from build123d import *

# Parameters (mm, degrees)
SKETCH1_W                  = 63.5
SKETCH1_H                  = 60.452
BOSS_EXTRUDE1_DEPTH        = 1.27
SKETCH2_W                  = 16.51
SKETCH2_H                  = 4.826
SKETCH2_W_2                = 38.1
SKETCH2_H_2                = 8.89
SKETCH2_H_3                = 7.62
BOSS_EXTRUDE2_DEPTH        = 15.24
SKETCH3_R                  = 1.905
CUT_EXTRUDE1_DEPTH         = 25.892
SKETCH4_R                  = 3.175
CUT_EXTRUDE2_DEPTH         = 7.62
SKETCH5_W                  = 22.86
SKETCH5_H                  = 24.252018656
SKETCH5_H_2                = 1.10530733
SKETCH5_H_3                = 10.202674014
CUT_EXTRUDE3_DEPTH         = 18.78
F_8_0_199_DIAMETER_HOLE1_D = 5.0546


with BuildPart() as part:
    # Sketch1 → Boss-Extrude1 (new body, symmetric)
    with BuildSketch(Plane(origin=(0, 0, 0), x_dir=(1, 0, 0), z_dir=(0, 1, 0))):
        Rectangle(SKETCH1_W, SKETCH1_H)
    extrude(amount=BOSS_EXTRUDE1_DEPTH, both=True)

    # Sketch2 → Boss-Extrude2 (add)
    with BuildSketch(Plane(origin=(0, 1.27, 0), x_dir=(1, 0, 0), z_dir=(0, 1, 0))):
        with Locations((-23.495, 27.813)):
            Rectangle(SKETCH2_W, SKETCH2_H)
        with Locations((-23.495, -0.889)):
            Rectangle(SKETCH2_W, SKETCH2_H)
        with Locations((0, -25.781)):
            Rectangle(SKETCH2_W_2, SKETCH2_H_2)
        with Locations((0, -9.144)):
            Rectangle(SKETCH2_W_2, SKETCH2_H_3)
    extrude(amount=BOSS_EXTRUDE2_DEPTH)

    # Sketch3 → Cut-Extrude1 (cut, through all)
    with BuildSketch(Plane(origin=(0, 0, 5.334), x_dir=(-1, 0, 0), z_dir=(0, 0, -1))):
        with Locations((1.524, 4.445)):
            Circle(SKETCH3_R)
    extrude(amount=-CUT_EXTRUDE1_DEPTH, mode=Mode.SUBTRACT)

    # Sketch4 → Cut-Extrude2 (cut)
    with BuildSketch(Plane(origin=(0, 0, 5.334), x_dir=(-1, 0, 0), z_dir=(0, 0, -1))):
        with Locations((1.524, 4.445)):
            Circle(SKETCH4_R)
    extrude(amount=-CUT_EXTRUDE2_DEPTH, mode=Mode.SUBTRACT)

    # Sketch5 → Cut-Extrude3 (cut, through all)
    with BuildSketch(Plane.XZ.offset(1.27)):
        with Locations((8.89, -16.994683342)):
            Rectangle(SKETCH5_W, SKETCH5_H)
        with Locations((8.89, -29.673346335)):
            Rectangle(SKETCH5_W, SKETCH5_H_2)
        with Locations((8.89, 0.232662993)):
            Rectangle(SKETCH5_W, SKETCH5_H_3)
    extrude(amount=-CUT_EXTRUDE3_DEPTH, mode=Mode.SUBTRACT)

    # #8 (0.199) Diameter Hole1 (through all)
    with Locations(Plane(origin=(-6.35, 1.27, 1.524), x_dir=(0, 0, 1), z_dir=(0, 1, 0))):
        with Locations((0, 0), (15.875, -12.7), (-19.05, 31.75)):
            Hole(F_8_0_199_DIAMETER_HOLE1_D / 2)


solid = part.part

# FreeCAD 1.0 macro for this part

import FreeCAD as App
import Part
import Sketcher

V = App.Vector
Q = App.Units.Quantity

doc = App.newDocument("Part")
params = doc.addObject("Spreadsheet::Sheet", "Params")
for row, (alias, value) in enumerate([
    ("sketch1_width", "2.5 in"),
    ("sketch1_height", "2.38 in"),
    ("pad1_length", "0.1 in"),
    ("sketch2_width", "1.5 in"),
    ("sketch2_height", "0.3 in"),
    ("sketch2_width2", "0.65 in"),
    ("sketch2_height2", "0.19 in"),
    ("sketch2_height3", "0.35 in"),
    ("pad2_length", "0.6 in"),
    ("sketch3_diameter", "0.15 in"),
    ("sketch4_diameter", "0.25 in"),
    ("pocket2_length", "0.3 in"),
    ("sketch5_width", "0.9 in"),
    ("sketch5_height", "1.4 in"),
    ("sketch6_diameter", "0.199 in"),
    ("hole_diameter", "0.199 in"),
], start=1):
    params.set(f"A{row}", alias)
    params.set(f"B{row}", "=" + value)
    params.setAlias(f"B{row}", alias)

body = doc.addObject("PartDesign::Body", "Body")

sketch1 = doc.addObject("Sketcher::SketchObject", "Sketch")
body.addObject(sketch1)
sketch1.AttachmentSupport = (doc.XZ_Plane, [""])
sketch1.MapMode = "FlatFace"
sketch1.addGeometry([
    Part.LineSegment(V(-32, -30, 0), V(-32, 30, 0)),
    Part.LineSegment(V(-32, 30, 0), V(32, 30, 0)),
    Part.LineSegment(V(32, 30, 0), V(32, -30, 0)),
    Part.LineSegment(V(32, -30, 0), V(-32, -30, 0)),
], False)
sketch1.addConstraint([
    Sketcher.Constraint("Coincident", 0, 2, 1, 1),
    Sketcher.Constraint("Coincident", 1, 2, 2, 1),
    Sketcher.Constraint("Coincident", 2, 2, 3, 1),
    Sketcher.Constraint("Coincident", 3, 2, 0, 1),
    Sketcher.Constraint("Vertical", 0),
    Sketcher.Constraint("Horizontal", 1),
    Sketcher.Constraint("Vertical", 2),
    Sketcher.Constraint("Horizontal", 3),
    Sketcher.Constraint("Symmetric", 0, 2, 2, 2, -1, 1),
    Sketcher.Constraint("DistanceX", 1, 1, 1, 2, Q("2.5 in")),
    Sketcher.Constraint("DistanceY", 0, 1, 0, 2, Q("2.38 in")),
])
sketch1.setExpression("Constraints[9]", "Params.sketch1_width")
sketch1.setExpression("Constraints[10]", "Params.sketch1_height")
pad1 = doc.addObject("PartDesign::Pad", "Pad")
body.addObject(pad1)
pad1.Profile = sketch1
pad1.setExpression("Length", "Params.pad1_length")
pad1.Midplane = True

sketch2 = doc.addObject("Sketcher::SketchObject", "Sketch001")
body.addObject(sketch2)
sketch2.AttachmentSupport = (doc.XZ_Plane, [""])
sketch2.MapMode = "FlatFace"
sketch2.AttachmentOffset = App.Placement(V(0, 0, -0.05 * 25.4), App.Rotation())
sketch2.addGeometry([
    Part.LineSegment(V(-31.8, -30.2, 0), V(-31.8, -25.4, 0)),
    Part.LineSegment(V(-31.8, -25.4, 0), V(-15.2, -25.4, 0)),
    Part.LineSegment(V(-15.2, -25.4, 0), V(-15.2, -30.2, 0)),
    Part.LineSegment(V(-15.2, -30.2, 0), V(-31.8, -30.2, 0)),
    Part.LineSegment(V(-31.8, -1.5, 0), V(-31.8, 3.3, 0)),
    Part.LineSegment(V(-31.8, 3.3, 0), V(-15.2, 3.3, 0)),
    Part.LineSegment(V(-15.2, 3.3, 0), V(-15.2, -1.5, 0)),
    Part.LineSegment(V(-15.2, -1.5, 0), V(-31.8, -1.5, 0)),
    Part.LineSegment(V(-19.1, 21.3, 0), V(-19.1, 30.2, 0)),
    Part.LineSegment(V(-19.1, 30.2, 0), V(19.1, 30.2, 0)),
    Part.LineSegment(V(19.1, 30.2, 0), V(19.1, 21.3, 0)),
    Part.LineSegment(V(19.1, 21.3, 0), V(-19.1, 21.3, 0)),
    Part.LineSegment(V(-19.1, 5.3, 0), V(-19.1, 13, 0)),
    Part.LineSegment(V(-19.1, 13, 0), V(19.1, 13, 0)),
    Part.LineSegment(V(19.1, 13, 0), V(19.1, 5.3, 0)),
    Part.LineSegment(V(19.1, 5.3, 0), V(-19.1, 5.3, 0)),
], False)
sketch2.addConstraint([
    Sketcher.Constraint("Coincident", 0, 2, 1, 1),
    Sketcher.Constraint("Coincident", 1, 2, 2, 1),
    Sketcher.Constraint("Coincident", 2, 2, 3, 1),
    Sketcher.Constraint("Coincident", 3, 2, 0, 1),
    Sketcher.Constraint("Coincident", 4, 2, 5, 1),
    Sketcher.Constraint("Coincident", 5, 2, 6, 1),
    Sketcher.Constraint("Coincident", 6, 2, 7, 1),
    Sketcher.Constraint("Coincident", 7, 2, 4, 1),
    Sketcher.Constraint("Coincident", 8, 2, 9, 1),
    Sketcher.Constraint("Coincident", 9, 2, 10, 1),
    Sketcher.Constraint("Coincident", 10, 2, 11, 1),
    Sketcher.Constraint("Coincident", 11, 2, 8, 1),
    Sketcher.Constraint("Coincident", 12, 2, 13, 1),
    Sketcher.Constraint("Coincident", 13, 2, 14, 1),
    Sketcher.Constraint("Coincident", 14, 2, 15, 1),
    Sketcher.Constraint("Coincident", 15, 2, 12, 1),
    Sketcher.Constraint("Vertical", 0),
    Sketcher.Constraint("Horizontal", 1),
    Sketcher.Constraint("Vertical", 2),
    Sketcher.Constraint("Horizontal", 3),
    Sketcher.Constraint("Vertical", 4),
    Sketcher.Constraint("Horizontal", 5),
    Sketcher.Constraint("Vertical", 6),
    Sketcher.Constraint("Horizontal", 7),
    Sketcher.Constraint("Vertical", 8),
    Sketcher.Constraint("Horizontal", 9),
    Sketcher.Constraint("Vertical", 10),
    Sketcher.Constraint("Horizontal", 11),
    Sketcher.Constraint("Vertical", 12),
    Sketcher.Constraint("Horizontal", 13),
    Sketcher.Constraint("Vertical", 14),
    Sketcher.Constraint("Horizontal", 15),
    Sketcher.Constraint("Vertical", 3, 2, 4, 2),
    Sketcher.Constraint("Vertical", 2, 2, 5, 2),
    Sketcher.Constraint("Vertical", 11, 2, 12, 2),
    Sketcher.Constraint("Vertical", 10, 2, 13, 2),
    Sketcher.Constraint("Equal", 2, 4),
    Sketcher.Constraint("DistanceX", 9, 1, 9, 2, Q("1.5 in")),
    Sketcher.Constraint("DistanceY", 12, 1, 12, 2, Q("0.3 in")),
    Sketcher.Constraint("DistanceY", 0, 2, -1, 1, Q("1 in")),
    Sketcher.Constraint("DistanceX", 4, 2, 9, 2, Q("2 in")),
    Sketcher.Constraint("DistanceX", 1, 1, 1, 2, Q("0.65 in")),
    Sketcher.Constraint("DistanceY", 0, 1, 0, 2, Q("0.19 in")),
    Sketcher.Constraint("DistanceY", 8, 1, 8, 2, Q("0.35 in")),
    Sketcher.Constraint("DistanceX", 1, 2, -1, 1, Q("0.6 in")),
    Sketcher.Constraint("DistanceY", 6, 2, 10, 2, Q("0.9 in")),
    Sketcher.Constraint("DistanceY", -1, 1, 4, 2, Q("0.13 in")),
    Sketcher.Constraint("DistanceY", -1, 1, 12, 2, Q("0.51 in")),
])
sketch2.setExpression("Constraints[37]", "Params.sketch2_width")
sketch2.setExpression("Constraints[38]", "Params.sketch2_height")
sketch2.setExpression("Constraints[41]", "Params.sketch2_width2")
sketch2.setExpression("Constraints[42]", "Params.sketch2_height2")
sketch2.setExpression("Constraints[43]", "Params.sketch2_height3")
pad2 = doc.addObject("PartDesign::Pad", "Pad001")
body.addObject(pad2)
pad2.Profile = sketch2
pad2.setExpression("Length", "Params.pad2_length")
pad2.Reversed = True

sketch3 = doc.addObject("Sketcher::SketchObject", "Sketch002")
body.addObject(sketch3)
sketch3.AttachmentSupport = (doc.XY_Plane, [""])
sketch3.MapMode = "FlatFace"
sketch3.AttachmentOffset = App.Placement(V(0, 0, 0.21 * 25.4), App.Rotation())
sketch3.addGeometry(Part.Circle(V(-1.5, 4.4, 0), V(0, 0, 1), 1.9), False)
sketch3.addConstraint([
    Sketcher.Constraint("Diameter", 0, Q("0.15 in")),
    Sketcher.Constraint("DistanceX", 0, 3, -1, 1, Q("0.06 in")),
    Sketcher.Constraint("DistanceY", -1, 1, 0, 3, Q("0.175 in")),
])
sketch3.setExpression("Constraints[0]", "Params.sketch3_diameter")
pocket1 = doc.addObject("PartDesign::Pocket", "Pocket")
body.addObject(pocket1)
pocket1.Profile = sketch3
pocket1.Type = "ThroughAll"
pocket1.Reversed = True

sketch4 = doc.addObject("Sketcher::SketchObject", "Sketch003")
body.addObject(sketch4)
sketch4.AttachmentSupport = (doc.XY_Plane, [""])
sketch4.MapMode = "FlatFace"
sketch4.AttachmentOffset = App.Placement(V(0, 0, 0.21 * 25.4), App.Rotation())
sketch4.addGeometry(Part.Circle(V(-1.5, 4.4, 0), V(0, 0, 1), 3.2), False)
sketch4.addConstraint([
    Sketcher.Constraint("Diameter", 0, Q("0.25 in")),
    Sketcher.Constraint("DistanceX", 0, 3, -1, 1, Q("0.06 in")),
    Sketcher.Constraint("DistanceY", -1, 1, 0, 3, Q("0.175 in")),
])
sketch4.setExpression("Constraints[0]", "Params.sketch4_diameter")
pocket2 = doc.addObject("PartDesign::Pocket", "Pocket001")
body.addObject(pocket2)
pocket2.Profile = sketch4
pocket2.setExpression("Length", "Params.pocket2_length")
pocket2.Reversed = True

sketch5 = doc.addObject("Sketcher::SketchObject", "Sketch004")
body.addObject(sketch5)
sketch5.AttachmentSupport = (doc.XZ_Plane, [""])
sketch5.MapMode = "FlatFace"
sketch5.AttachmentOffset = App.Placement(V(0, 0, 0.05 * 25.4), App.Rotation())
sketch5.addGeometry([
    Part.LineSegment(V(-3, -30, 0), V(20, -30, 0)),
    Part.LineSegment(V(20, -30, 0), V(20, 5, 0)),
    Part.LineSegment(V(20, 5, 0), V(-3, 5, 0)),
    Part.LineSegment(V(-3, 5, 0), V(-3, -30, 0)),
], False)
sketch5.addConstraint([
    Sketcher.Constraint("Coincident", 0, 2, 1, 1),
    Sketcher.Constraint("Coincident", 1, 2, 2, 1),
    Sketcher.Constraint("Coincident", 2, 2, 3, 1),
    Sketcher.Constraint("Coincident", 3, 2, 0, 1),
    Sketcher.Constraint("Horizontal", 0),
    Sketcher.Constraint("Vertical", 1),
    Sketcher.Constraint("Horizontal", 2),
    Sketcher.Constraint("Vertical", 3),
    Sketcher.Constraint("DistanceX", 0, 1, 0, 2, Q("0.9 in")),
    Sketcher.Constraint("DistanceY", 1, 1, 1, 2, Q("1.4 in")),
    Sketcher.Constraint("DistanceX", -1, 1, 0, 2, Q("0.8 in")),
    Sketcher.Constraint("DistanceY", 0, 2, -1, 1, Q("1.19 in")),
])
sketch5.setExpression("Constraints[8]", "Params.sketch5_width")
sketch5.setExpression("Constraints[9]", "Params.sketch5_height")
pocket3 = doc.addObject("PartDesign::Pocket", "Pocket002")
body.addObject(pocket3)
pocket3.Profile = sketch5
pocket3.Type = "ThroughAll"

sketch6 = doc.addObject("Sketcher::SketchObject", "Sketch005")
body.addObject(sketch6)
sketch6.AttachmentSupport = (doc.XZ_Plane, [""])
sketch6.MapMode = "FlatFace"
sketch6.AttachmentOffset = App.Placement(V(0, 0, -0.05 * 25.4), App.Rotation())
sketch6.addGeometry([
    Part.Circle(V(-6.3, 1.5, 0), V(0, 0, 1), 2.5),
    Part.Circle(V(-19.1, 17.4, 0), V(0, 0, 1), 2.5),
    Part.Circle(V(25.4, -17.5, 0), V(0, 0, 1), 2.5),
], False)
sketch6.addConstraint([
    Sketcher.Constraint("Equal", 0, 1),
    Sketcher.Constraint("Equal", 1, 2),
    Sketcher.Constraint("Diameter", 0, Q("0.199 in")),
    Sketcher.Constraint("DistanceX", -1, 1, 2, 3, Q("1 in")),
    Sketcher.Constraint("DistanceX", 1, 3, 0, 3, Q("0.5 in")),
    Sketcher.Constraint("DistanceX", 0, 3, -1, 1, Q("0.25 in")),
    Sketcher.Constraint("DistanceY", -1, 1, 0, 3, Q("0.06 in")),
    Sketcher.Constraint("DistanceY", 2, 3, -1, 1, Q("0.69 in")),
    Sketcher.Constraint("DistanceY", -1, 1, 1, 3, Q("0.685 in")),
])
sketch6.setExpression("Constraints[2]", "Params.sketch6_diameter")
doc.recompute()
hole = doc.addObject("PartDesign::Hole", "Hole")
body.addObject(hole)
hole.Profile = sketch6
hole.ThreadType = "None"
hole.setExpression("Diameter", "Params.hole_diameter")
hole.DepthType = "ThroughAll"
hole.Reversed = True

doc.recompute()
